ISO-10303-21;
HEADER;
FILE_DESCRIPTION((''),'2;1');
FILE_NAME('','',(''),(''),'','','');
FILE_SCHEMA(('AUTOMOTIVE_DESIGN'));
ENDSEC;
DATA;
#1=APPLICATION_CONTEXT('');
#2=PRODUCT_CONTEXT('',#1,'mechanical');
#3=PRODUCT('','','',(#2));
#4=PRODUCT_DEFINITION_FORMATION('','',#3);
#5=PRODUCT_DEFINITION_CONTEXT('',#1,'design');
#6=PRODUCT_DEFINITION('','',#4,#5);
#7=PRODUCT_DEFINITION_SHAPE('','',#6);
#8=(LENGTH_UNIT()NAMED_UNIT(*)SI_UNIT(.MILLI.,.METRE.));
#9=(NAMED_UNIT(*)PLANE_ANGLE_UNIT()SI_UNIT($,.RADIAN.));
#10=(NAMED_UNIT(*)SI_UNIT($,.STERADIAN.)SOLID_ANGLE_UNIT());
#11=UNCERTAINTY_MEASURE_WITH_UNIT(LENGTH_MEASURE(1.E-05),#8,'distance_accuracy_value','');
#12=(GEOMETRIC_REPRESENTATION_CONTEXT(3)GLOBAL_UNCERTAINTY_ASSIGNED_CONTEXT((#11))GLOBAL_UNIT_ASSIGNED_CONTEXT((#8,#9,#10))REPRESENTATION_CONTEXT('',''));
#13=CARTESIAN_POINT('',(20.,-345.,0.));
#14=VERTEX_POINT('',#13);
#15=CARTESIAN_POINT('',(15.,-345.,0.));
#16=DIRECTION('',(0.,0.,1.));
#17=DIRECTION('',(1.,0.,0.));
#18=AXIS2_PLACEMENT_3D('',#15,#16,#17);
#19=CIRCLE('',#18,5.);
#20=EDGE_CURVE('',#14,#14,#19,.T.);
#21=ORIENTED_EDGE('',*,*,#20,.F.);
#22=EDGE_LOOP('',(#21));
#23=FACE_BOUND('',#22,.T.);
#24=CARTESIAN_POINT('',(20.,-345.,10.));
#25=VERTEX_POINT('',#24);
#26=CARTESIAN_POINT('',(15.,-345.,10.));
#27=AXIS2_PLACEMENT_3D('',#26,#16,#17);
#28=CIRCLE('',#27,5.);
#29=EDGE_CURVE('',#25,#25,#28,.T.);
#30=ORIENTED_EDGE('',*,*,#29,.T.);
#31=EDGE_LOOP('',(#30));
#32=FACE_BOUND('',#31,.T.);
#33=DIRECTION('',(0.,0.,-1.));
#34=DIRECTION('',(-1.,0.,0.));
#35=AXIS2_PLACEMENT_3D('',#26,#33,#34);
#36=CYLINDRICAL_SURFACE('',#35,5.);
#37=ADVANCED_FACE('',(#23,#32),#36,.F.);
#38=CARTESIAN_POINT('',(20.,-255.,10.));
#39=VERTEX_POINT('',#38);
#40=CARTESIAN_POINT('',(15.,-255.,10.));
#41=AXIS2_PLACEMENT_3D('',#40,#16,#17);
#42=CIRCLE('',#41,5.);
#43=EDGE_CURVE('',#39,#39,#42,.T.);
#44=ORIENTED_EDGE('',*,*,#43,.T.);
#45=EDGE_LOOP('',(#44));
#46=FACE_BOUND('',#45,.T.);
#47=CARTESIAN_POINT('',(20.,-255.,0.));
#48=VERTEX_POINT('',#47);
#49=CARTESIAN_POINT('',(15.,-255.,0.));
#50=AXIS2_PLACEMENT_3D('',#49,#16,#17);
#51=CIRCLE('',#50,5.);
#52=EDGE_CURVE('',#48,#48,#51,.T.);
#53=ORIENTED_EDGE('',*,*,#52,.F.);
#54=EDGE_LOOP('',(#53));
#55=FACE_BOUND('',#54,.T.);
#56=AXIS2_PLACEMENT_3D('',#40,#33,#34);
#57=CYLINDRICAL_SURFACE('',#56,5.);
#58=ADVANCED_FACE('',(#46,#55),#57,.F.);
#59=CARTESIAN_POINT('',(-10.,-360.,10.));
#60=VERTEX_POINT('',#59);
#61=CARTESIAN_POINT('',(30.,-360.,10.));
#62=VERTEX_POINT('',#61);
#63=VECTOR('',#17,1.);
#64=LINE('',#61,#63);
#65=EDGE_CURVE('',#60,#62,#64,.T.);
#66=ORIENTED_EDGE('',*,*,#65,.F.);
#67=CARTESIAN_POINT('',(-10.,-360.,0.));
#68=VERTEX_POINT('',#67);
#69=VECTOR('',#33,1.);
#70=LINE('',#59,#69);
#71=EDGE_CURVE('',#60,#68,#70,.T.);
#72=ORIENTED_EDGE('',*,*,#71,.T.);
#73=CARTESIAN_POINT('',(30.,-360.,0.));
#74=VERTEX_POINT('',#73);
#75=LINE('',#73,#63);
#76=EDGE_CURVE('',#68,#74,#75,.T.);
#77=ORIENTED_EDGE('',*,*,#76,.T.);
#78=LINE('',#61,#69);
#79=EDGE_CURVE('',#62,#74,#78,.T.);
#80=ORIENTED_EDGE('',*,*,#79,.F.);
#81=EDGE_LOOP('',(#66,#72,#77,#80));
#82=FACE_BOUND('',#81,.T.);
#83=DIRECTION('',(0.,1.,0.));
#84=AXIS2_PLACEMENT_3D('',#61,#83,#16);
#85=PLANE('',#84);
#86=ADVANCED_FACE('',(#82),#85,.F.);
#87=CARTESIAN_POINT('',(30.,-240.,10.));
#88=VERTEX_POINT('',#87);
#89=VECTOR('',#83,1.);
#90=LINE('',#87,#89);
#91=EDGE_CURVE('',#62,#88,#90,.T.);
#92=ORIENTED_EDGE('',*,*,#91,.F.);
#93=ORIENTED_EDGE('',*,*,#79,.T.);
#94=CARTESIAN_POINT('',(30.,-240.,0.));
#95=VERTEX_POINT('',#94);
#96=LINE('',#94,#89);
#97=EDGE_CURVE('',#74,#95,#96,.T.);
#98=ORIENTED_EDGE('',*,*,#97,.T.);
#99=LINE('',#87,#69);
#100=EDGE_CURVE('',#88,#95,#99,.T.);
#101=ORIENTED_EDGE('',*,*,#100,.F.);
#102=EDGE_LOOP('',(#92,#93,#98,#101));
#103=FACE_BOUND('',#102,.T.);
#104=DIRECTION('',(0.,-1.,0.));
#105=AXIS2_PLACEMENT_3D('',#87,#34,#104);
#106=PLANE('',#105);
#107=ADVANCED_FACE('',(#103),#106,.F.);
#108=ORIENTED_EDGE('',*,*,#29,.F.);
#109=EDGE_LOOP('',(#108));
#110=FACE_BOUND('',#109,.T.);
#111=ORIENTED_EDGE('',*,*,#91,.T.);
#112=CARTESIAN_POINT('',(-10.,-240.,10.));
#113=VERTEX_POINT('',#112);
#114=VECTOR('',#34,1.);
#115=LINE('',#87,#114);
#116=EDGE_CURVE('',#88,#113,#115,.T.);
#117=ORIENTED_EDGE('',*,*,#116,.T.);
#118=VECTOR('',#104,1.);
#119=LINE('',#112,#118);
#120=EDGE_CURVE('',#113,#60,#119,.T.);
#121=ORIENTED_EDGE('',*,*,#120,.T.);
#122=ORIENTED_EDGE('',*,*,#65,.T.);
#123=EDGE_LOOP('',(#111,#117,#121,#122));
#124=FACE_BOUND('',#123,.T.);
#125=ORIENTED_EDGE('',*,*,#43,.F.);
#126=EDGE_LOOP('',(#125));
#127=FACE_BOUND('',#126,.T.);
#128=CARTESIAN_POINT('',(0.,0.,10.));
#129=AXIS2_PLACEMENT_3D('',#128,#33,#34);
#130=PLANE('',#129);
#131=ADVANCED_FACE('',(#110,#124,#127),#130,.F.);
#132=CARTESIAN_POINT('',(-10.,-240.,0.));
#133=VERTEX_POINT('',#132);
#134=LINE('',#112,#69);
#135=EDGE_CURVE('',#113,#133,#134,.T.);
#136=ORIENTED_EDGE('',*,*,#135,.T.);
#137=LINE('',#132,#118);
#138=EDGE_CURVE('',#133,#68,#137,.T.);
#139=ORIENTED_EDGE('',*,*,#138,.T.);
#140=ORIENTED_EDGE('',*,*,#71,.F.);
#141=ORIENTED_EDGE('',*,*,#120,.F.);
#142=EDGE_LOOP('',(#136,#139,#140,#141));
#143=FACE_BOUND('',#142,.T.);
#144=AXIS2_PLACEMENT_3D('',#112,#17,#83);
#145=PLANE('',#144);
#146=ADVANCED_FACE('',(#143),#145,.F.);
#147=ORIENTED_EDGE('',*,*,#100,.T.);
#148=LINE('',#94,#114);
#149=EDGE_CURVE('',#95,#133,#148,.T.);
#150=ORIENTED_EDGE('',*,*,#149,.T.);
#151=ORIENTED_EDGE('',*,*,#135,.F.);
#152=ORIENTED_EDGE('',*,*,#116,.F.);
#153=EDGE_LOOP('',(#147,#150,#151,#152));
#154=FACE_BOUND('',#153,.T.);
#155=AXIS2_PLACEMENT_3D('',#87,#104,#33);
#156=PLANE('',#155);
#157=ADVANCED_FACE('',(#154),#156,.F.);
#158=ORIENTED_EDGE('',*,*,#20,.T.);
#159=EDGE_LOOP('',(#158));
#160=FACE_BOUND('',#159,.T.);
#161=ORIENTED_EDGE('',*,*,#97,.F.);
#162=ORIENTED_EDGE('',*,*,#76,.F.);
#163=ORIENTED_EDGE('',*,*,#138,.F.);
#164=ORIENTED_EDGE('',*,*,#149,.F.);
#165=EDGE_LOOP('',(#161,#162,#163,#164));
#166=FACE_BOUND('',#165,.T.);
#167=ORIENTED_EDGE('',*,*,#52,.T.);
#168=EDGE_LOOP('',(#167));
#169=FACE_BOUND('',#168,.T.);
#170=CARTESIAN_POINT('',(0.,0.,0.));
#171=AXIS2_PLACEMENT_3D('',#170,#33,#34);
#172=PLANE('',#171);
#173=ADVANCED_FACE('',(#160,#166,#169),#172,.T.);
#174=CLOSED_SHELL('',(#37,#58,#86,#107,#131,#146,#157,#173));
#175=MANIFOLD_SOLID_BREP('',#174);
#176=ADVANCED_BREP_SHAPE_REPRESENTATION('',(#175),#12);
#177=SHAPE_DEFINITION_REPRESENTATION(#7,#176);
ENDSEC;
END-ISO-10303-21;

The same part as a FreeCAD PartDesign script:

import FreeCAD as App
import Part
import Sketcher
Q = App.Units.Quantity


def add_polygon(sketch, points):
    """Adds a closed chain of lines whose ends are joined by coincident constraints."""
    first, n = sketch.GeometryCount, len(points)
    for a, b in zip(points, points[1:] + points[:1]):
        sketch.addGeometry(Part.LineSegment(App.Vector(*a, 0), App.Vector(*b, 0)), False)
    for i in range(n):
        sketch.addConstraint(Sketcher.Constraint("Coincident", first + i, 2, first + (i + 1) % n, 1))

doc = App.newDocument("Part")
body = doc.addObject("PartDesign::Body", "Body")

# Sketch on XY plane
sketch1 = body.newObject("Sketcher::SketchObject", "Sketch")
sketch1.AttachmentSupport = (doc.getObject("XY_Plane"), [""])
sketch1.MapMode = "FlatFace"
add_polygon(sketch1, [(-10, -240), (-10, -360), (30, -360), (30, -240)])  # lines 0-3
sketch1.addConstraint(Sketcher.Constraint("Vertical", 0))
sketch1.addConstraint(Sketcher.Constraint("Horizontal", 1))
sketch1.addConstraint(Sketcher.Constraint("Vertical", 2))
sketch1.addConstraint(Sketcher.Constraint("Horizontal", 3))
sketch1.addConstraint(Sketcher.Constraint("DistanceX", 1, 1, 1, 2, Q("40 mm")))
sketch1.addConstraint(Sketcher.Constraint("DistanceY", 0, 2, 0, 1, Q("120 mm")))
sketch1.addConstraint(Sketcher.Constraint("DistanceX", 0, 2, -1, 1, Q("10 mm")))
sketch1.addConstraint(Sketcher.Constraint("DistanceY", 0, 2, -1, 1, Q("360 mm")))
pad1 = body.newObject("PartDesign::Pad", "Pad")
pad1.Profile = sketch1
pad1.Length = 10

# Sketch on XY plane
sketch2 = body.newObject("Sketcher::SketchObject", "Sketch001")
sketch2.AttachmentSupport = (doc.getObject("XY_Plane"), [""])
sketch2.MapMode = "FlatFace"
sketch2.addGeometry(Part.Circle(App.Vector(15, -255, 0), App.Vector(0, 0, 1), 5), False)
sketch2.addGeometry(Part.Circle(App.Vector(15, -345, 0), App.Vector(0, 0, 1), 5), False)
sketch2.addConstraint(Sketcher.Constraint("Equal", 0, 1))
sketch2.addConstraint(Sketcher.Constraint("Vertical", 0, 3, 1, 3))
sketch2.addConstraint(Sketcher.Constraint("Diameter", 0, Q("10 mm")))
sketch2.addConstraint(Sketcher.Constraint("DistanceX", -1, 1, 0, 3, Q("15 mm")))
sketch2.addConstraint(Sketcher.Constraint("DistanceY", 0, 3, -1, 1, Q("255 mm")))
sketch2.addConstraint(Sketcher.Constraint("DistanceY", 1, 3, -1, 1, Q("345 mm")))
pocket1 = body.newObject("PartDesign::Pocket", "Pocket")
pocket1.Profile = sketch2
pocket1.Type = "ThroughAll"
pocket1.Reversed = True

doc.recompute()
